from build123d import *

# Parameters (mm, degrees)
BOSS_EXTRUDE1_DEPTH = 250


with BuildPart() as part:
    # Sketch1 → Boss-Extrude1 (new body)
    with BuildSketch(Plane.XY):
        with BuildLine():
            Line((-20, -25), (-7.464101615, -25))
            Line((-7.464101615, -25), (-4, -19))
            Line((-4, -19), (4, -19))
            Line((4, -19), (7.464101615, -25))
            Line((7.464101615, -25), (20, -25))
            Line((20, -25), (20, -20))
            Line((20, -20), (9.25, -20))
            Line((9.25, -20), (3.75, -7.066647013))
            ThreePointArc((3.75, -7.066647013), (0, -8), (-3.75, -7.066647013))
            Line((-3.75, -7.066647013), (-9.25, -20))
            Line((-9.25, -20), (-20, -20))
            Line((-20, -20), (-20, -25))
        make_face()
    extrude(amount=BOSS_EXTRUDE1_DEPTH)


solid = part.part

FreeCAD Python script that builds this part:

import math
import FreeCAD as App
import Part
import Sketcher

V = App.Vector
Q = App.Units.Quantity

doc = App.newDocument("Part")
body = doc.addObject("PartDesign::Body", "Body")

sketch1 = doc.addObject("Sketcher::SketchObject", "Sketch")
body.addObject(sketch1)
sketch1.AttachmentSupport = (doc.XY_Plane, [""])
sketch1.MapMode = "FlatFace"
sketch1.addGeometry(Part.LineSegment(V(-20, -25, 0), V(-7, -25, 0)), False)
sketch1.addGeometry(Part.LineSegment(V(-7, -25, 0), V(-4, -19, 0)), False)
sketch1.addGeometry(Part.LineSegment(V(-4, -19, 0), V(4, -19, 0)), False)
sketch1.addGeometry(Part.LineSegment(V(4, -19, 0), V(7, -25, 0)), False)
sketch1.addGeometry(Part.LineSegment(V(7, -25, 0), V(20, -25, 0)), False)
sketch1.addGeometry(Part.LineSegment(V(20, -25, 0), V(20, -20, 0)), False)
sketch1.addGeometry(Part.LineSegment(V(20, -20, 0), V(9, -20, 0)), False)
sketch1.addGeometry(Part.LineSegment(V(9, -20, 0), V(4, -7, 0)), False)
sketch1.addGeometry(Part.ArcOfCircle(Part.Circle(V(0, 0, 0), V(0, 0, 1), 8), math.radians(-118), math.radians(-62)), False)
sketch1.addGeometry(Part.LineSegment(V(-4, -7, 0), V(-9, -20, 0)), False)
sketch1.addGeometry(Part.LineSegment(V(-9, -20, 0), V(-20, -20, 0)), False)
sketch1.addGeometry(Part.LineSegment(V(-20, -20, 0), V(-20, -25, 0)), False)
sketch1.addConstraint(Sketcher.Constraint("Coincident", 0, 2, 1, 1))
sketch1.addConstraint(Sketcher.Constraint("Coincident", 1, 2, 2, 1))
sketch1.addConstraint(Sketcher.Constraint("Coincident", 2, 2, 3, 1))
sketch1.addConstraint(Sketcher.Constraint("Coincident", 3, 2, 4, 1))
sketch1.addConstraint(Sketcher.Constraint("Coincident", 4, 2, 5, 1))
sketch1.addConstraint(Sketcher.Constraint("Coincident", 5, 2, 6, 1))
sketch1.addConstraint(Sketcher.Constraint("Coincident", 6, 2, 7, 1))
sketch1.addConstraint(Sketcher.Constraint("Coincident", 7, 2, 8, 2))
sketch1.addConstraint(Sketcher.Constraint("Coincident", 8, 1, 9, 1))
sketch1.addConstraint(Sketcher.Constraint("Coincident", 9, 2, 10, 1))
sketch1.addConstraint(Sketcher.Constraint("Coincident", 10, 2, 11, 1))
sketch1.addConstraint(Sketcher.Constraint("Coincident", 11, 2, 0, 1))
sketch1.addConstraint(Sketcher.Constraint("Horizontal", 0))
sketch1.addConstraint(Sketcher.Constraint("Horizontal", 2))
sketch1.addConstraint(Sketcher.Constraint("Horizontal", 4))
sketch1.addConstraint(Sketcher.Constraint("Vertical", 5))
sketch1.addConstraint(Sketcher.Constraint("Horizontal", 6))
sketch1.addConstraint(Sketcher.Constraint("Horizontal", 10))
sketch1.addConstraint(Sketcher.Constraint("Vertical", 11))
sketch1.addConstraint(Sketcher.Constraint("Coincident", 8, 3, -1, 1))
sketch1.addConstraint(Sketcher.Constraint("Symmetric", 0, 2, 3, 2, -2))
sketch1.addConstraint(Sketcher.Constraint("Symmetric", 6, 2, 9, 2, -2))
sketch1.addConstraint(Sketcher.Constraint("Horizontal", 7, 2, 8, 1))
sketch1.addConstraint(Sketcher.Constraint("Equal", 0, 4))
sketch1.addConstraint(Sketcher.Constraint("Equal", 1, 3))
sketch1.addConstraint(Sketcher.Constraint("Radius", 8, Q("8 mm")))
sketch1.addConstraint(Sketcher.Constraint("DistanceX", 2, 1, 2, 2, Q("8 mm")))
sketch1.addConstraint(Sketcher.Constraint("DistanceY", 5, 1, 5, 2, Q("5 mm")))
sketch1.addConstraint(Sketcher.Constraint("Angle", 1, Q("60 deg")))
sketch1.addConstraint(Sketcher.Constraint("DistanceY", 0, 2, -1, 1, Q("25 mm")))
sketch1.addConstraint(Sketcher.Constraint("DistanceY", 1, 2, -1, 1, Q("19 mm")))
sketch1.addConstraint(Sketcher.Constraint("DistanceX", -1, 1, 4, 2, Q("20 mm")))
sketch1.addConstraint(Sketcher.Constraint("DistanceX", 6, 2, 6, 1, Q("10.75 mm")))
sketch1.addConstraint(Sketcher.Constraint("DistanceX", 7, 2, 6, 2, Q("5.5 mm")))
pad1 = doc.addObject("PartDesign::Pad", "Pad")
body.addObject(pad1)
pad1.Profile = sketch1
pad1.Length = 250

doc.recompute()
